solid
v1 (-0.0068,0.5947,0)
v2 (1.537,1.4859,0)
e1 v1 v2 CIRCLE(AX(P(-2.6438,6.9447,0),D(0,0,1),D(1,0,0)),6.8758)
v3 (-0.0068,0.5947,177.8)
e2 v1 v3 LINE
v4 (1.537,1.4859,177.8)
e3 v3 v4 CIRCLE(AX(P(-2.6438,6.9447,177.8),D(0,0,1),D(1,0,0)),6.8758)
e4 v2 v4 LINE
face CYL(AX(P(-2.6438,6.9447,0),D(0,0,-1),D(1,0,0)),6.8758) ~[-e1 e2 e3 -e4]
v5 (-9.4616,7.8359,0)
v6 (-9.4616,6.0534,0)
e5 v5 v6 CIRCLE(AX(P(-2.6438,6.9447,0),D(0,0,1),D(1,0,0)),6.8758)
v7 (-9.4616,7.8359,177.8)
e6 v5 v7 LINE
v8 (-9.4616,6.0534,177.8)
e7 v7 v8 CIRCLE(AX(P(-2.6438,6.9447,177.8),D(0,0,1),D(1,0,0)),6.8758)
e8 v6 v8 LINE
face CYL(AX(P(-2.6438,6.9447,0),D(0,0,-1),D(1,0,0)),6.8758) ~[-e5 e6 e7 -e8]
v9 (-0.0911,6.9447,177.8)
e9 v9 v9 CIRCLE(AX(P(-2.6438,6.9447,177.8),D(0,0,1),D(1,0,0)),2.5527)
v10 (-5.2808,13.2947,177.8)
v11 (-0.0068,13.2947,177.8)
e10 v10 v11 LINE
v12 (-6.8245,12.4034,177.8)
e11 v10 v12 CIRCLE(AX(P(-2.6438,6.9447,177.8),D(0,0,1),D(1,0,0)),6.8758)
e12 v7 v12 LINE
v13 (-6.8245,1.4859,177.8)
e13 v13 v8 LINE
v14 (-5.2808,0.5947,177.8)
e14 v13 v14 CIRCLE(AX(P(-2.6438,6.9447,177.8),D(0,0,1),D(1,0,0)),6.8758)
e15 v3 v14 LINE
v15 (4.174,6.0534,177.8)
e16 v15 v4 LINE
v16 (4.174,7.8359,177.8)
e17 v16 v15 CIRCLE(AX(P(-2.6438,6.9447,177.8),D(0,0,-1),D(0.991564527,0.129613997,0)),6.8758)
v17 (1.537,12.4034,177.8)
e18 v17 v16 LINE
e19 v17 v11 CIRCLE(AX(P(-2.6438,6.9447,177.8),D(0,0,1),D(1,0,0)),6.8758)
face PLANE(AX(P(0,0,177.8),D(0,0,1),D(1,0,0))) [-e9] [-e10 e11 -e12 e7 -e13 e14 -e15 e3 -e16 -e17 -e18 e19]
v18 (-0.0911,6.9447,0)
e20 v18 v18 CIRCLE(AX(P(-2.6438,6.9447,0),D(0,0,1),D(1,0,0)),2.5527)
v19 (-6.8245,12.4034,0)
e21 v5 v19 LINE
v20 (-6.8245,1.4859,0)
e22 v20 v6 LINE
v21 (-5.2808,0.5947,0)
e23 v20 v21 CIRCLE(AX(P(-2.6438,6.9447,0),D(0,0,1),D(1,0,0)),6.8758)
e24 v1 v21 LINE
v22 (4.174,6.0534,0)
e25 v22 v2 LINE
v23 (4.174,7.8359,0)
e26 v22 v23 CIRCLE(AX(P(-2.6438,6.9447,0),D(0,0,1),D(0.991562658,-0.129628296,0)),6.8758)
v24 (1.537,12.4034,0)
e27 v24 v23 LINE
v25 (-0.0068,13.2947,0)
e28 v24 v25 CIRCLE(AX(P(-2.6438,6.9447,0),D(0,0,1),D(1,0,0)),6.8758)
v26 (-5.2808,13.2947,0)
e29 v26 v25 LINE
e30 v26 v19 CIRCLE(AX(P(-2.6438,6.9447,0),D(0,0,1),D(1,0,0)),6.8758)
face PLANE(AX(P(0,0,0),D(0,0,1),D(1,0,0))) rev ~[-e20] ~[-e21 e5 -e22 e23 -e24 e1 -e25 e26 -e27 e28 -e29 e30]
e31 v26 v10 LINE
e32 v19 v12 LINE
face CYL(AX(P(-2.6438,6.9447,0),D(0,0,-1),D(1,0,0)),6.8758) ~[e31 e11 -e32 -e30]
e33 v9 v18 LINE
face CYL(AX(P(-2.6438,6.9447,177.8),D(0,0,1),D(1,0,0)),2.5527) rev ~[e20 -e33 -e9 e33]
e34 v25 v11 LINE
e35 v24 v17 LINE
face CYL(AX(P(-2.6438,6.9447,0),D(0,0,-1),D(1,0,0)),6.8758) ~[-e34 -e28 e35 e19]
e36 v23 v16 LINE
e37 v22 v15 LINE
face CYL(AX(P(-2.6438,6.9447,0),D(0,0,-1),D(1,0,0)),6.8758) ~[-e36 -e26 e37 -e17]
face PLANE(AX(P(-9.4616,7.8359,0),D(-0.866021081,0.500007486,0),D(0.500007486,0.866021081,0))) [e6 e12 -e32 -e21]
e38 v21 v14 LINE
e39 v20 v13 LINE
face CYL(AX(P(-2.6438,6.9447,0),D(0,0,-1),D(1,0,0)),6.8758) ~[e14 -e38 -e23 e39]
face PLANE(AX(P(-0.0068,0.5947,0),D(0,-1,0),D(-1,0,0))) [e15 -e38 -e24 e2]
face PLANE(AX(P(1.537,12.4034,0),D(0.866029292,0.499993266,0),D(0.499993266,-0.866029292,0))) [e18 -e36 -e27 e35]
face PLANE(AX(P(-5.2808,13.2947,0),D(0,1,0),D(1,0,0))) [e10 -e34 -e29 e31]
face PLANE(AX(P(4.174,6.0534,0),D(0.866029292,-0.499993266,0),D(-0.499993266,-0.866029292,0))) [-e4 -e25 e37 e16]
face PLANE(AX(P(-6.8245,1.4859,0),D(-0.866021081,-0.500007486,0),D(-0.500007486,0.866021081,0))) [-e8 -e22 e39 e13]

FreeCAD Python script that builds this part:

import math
import FreeCAD as App
import Part
import Sketcher

V = App.Vector
Q = App.Units.Quantity

doc = App.newDocument("Part")
body = doc.addObject("PartDesign::Body", "Body")

# Sketch on XY plane
sketch1 = body.newObject("Sketcher::SketchObject", "Sketch")
sketch1.AttachmentSupport = (doc.getObject("XY_Plane"), [""])
sketch1.MapMode = "FlatFace"
sketch1.addGeometry([
    Part.ArcOfCircle(Part.Circle(V(-2.6, 6.9, 0), V(0, 0, 1), 6.9), math.radians(-7.45), math.radians(7.45)),  # 0
    Part.LineSegment(V(4.2, 7.8, 0), V(1.5, 12.4, 0)),  # 1
    Part.ArcOfCircle(Part.Circle(V(-2.6, 6.9, 0), V(0, 0, 1), 6.9), math.radians(52.55), math.radians(67.45)),  # 2
    Part.LineSegment(V(0, 13.3, 0), V(-5.3, 13.3, 0)),  # 3
    Part.ArcOfCircle(Part.Circle(V(-2.6, 6.9, 0), V(0, 0, 1), 6.9), math.radians(112.55), math.radians(127.45)),  # 4
    Part.LineSegment(V(-6.8, 12.4, 0), V(-9.5, 7.8, 0)),  # 5
    Part.ArcOfCircle(Part.Circle(V(-2.6, 6.9, 0), V(0, 0, 1), 6.9), math.radians(172.55), math.radians(187.45)),  # 6
    Part.LineSegment(V(-9.5, 6.1, 0), V(-6.8, 1.5, 0)),  # 7
    Part.ArcOfCircle(Part.Circle(V(-2.6, 6.9, 0), V(0, 0, 1), 6.9), math.radians(-127.45), math.radians(-112.55)),  # 8
    Part.LineSegment(V(-5.3, 0.6, 0), V(0, 0.6, 0)),  # 9
    Part.ArcOfCircle(Part.Circle(V(-2.6, 6.9, 0), V(0, 0, 1), 6.9), math.radians(-67.45), math.radians(-52.55)),  # 10
    Part.LineSegment(V(1.5, 1.5, 0), V(4.2, 6.1, 0)),  # 11
], False)
sketch1.addConstraint([
    Sketcher.Constraint("Coincident", 0, 2, 1, 1),
    Sketcher.Constraint("Coincident", 1, 2, 2, 1),
    Sketcher.Constraint("Coincident", 2, 2, 3, 1),
    Sketcher.Constraint("Coincident", 3, 2, 4, 1),
    Sketcher.Constraint("Coincident", 4, 2, 5, 1),
    Sketcher.Constraint("Coincident", 5, 2, 6, 1),
    Sketcher.Constraint("Coincident", 6, 2, 7, 1),
    Sketcher.Constraint("Coincident", 7, 2, 8, 1),
    Sketcher.Constraint("Coincident", 8, 2, 9, 1),
    Sketcher.Constraint("Coincident", 9, 2, 10, 1),
    Sketcher.Constraint("Coincident", 10, 2, 11, 1),
    Sketcher.Constraint("Coincident", 11, 2, 0, 1),
    Sketcher.Constraint("Horizontal", 3),
    Sketcher.Constraint("Horizontal", 9),
    Sketcher.Constraint("Coincident", 2, 3, 0, 3),
    Sketcher.Constraint("Coincident", 4, 3, 0, 3),
    Sketcher.Constraint("Coincident", 6, 3, 0, 3),
    Sketcher.Constraint("Coincident", 8, 3, 0, 3),
    Sketcher.Constraint("Coincident", 10, 3, 0, 3),
    Sketcher.Constraint("Equal", 0, 2),
    Sketcher.Constraint("Equal", 2, 4),
    Sketcher.Constraint("Equal", 4, 6),
    Sketcher.Constraint("Equal", 6, 8),
    Sketcher.Constraint("Equal", 8, 10),
    Sketcher.Constraint("Parallel", 1, 7),
    Sketcher.Constraint("Parallel", 5, 11),
    Sketcher.Constraint("Horizontal", 1, 2, 4, 2),
    Sketcher.Constraint("Horizontal", 0, 2, 5, 2),
    Sketcher.Constraint("Horizontal", 7, 2, 10, 2),
    Sketcher.Constraint("Vertical", 5, 2, 6, 2),
    Sketcher.Constraint("Vertical", 3, 2, 8, 2),
    Sketcher.Constraint("Radius", 0, Q("0.2707 in")),
    Sketcher.Constraint("Angle", 1, Q("119.9996 deg")),
    Sketcher.Constraint("DistanceY", 0, 3, 2, 2, Q("0.25 in")),
    Sketcher.Constraint("DistanceY", 10, 2, 0, 2, Q("0.25 in")),
    Sketcher.Constraint("DistanceY", -1, 1, 0, 2, Q("0.3085 in")),
    Sketcher.Constraint("DistanceX", -1, 1, 1, 2, Q("0.0605 in")),
])
pad1 = body.newObject("PartDesign::Pad", "Pad")
pad1.Profile = sketch1
pad1.Length = Q("7 in")

# Sketch on XY plane
sketch2 = body.newObject("Sketcher::SketchObject", "Sketch001")
sketch2.AttachmentSupport = (doc.getObject("XY_Plane"), [""])
sketch2.MapMode = "FlatFace"
sketch2.AttachmentOffset = App.Placement(V(0, 0, 7 * 25.4), App.Rotation())
sketch2.addGeometry(Part.Circle(V(-2.6, 6.9, 0), V(0, 0, 1), 2.6), False)
sketch2.addConstraint([
    Sketcher.Constraint("Diameter", 0, Q("0.201 in")),
    Sketcher.Constraint("DistanceX", 0, 3, -1, 1, 2.6438),
    Sketcher.Constraint("DistanceY", -1, 1, 0, 3, 6.9447),
])
pocket1 = body.newObject("PartDesign::Pocket", "Pocket")
pocket1.Profile = sketch2
pocket1.Length = Q("7 in")

doc.recompute()
